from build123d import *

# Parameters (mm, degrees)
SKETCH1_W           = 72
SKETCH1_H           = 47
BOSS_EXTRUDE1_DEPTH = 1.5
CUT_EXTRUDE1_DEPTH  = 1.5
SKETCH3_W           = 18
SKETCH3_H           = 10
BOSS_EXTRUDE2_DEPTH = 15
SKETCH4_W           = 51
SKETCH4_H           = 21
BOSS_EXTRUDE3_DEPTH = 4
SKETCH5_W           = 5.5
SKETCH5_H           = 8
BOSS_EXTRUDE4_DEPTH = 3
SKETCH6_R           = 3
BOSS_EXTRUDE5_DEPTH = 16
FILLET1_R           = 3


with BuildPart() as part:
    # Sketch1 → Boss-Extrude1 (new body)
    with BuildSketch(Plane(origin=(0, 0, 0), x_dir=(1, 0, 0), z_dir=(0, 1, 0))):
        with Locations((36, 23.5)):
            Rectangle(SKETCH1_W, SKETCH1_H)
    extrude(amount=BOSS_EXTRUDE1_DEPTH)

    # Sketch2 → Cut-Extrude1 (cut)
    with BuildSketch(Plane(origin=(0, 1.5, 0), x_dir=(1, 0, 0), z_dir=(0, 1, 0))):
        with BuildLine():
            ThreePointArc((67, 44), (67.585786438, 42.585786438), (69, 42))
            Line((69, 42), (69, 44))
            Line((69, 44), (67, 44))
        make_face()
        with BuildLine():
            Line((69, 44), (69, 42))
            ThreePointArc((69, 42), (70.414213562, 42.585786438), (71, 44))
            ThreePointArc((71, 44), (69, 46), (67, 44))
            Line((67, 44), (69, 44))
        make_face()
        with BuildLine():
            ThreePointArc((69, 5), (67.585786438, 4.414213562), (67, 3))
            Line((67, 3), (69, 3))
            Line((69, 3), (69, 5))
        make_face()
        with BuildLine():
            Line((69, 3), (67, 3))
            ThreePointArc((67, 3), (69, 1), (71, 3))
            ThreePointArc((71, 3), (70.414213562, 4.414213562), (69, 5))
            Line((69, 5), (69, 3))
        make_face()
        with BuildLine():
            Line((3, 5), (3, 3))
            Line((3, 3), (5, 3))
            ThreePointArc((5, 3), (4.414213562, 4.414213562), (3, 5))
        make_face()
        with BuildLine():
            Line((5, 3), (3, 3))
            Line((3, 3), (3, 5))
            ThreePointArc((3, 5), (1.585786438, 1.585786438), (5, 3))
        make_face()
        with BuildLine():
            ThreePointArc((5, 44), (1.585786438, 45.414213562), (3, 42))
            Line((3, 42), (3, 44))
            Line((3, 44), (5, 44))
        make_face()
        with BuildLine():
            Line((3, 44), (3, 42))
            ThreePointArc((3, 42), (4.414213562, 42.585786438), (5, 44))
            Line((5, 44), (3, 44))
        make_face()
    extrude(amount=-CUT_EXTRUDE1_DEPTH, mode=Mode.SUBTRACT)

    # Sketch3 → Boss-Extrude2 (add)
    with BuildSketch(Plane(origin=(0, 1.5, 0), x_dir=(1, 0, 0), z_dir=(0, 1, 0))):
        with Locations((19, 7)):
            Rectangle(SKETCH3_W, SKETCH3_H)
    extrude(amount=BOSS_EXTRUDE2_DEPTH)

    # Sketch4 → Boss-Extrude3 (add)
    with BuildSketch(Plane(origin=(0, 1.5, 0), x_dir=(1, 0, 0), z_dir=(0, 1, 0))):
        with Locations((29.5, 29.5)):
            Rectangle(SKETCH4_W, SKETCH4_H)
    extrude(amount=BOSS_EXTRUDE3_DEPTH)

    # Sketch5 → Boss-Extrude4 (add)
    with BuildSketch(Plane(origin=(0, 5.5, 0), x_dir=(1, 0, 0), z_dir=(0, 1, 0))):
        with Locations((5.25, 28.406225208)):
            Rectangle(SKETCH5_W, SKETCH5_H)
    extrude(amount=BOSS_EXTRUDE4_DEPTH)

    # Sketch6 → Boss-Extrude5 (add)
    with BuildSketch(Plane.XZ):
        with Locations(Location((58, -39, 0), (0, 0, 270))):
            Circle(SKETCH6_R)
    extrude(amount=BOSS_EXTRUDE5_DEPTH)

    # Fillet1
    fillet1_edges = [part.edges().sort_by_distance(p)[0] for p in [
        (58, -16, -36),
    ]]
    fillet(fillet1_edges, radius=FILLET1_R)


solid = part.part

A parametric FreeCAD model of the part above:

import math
import FreeCAD as App
import Part
import Sketcher

V = App.Vector


def edges_at(feature, points):
    """Names of the edges that pass closest to the given points."""
    edges = feature.Shape.Edges
    near = lambda p: min(range(len(edges)), key=lambda i: edges[i].distToShape(Part.Vertex(*p))[0])
    return sorted({f"Edge{near(p) + 1}" for p in points})


def add_polygon(sketch, points):
    """Adds a closed chain of lines whose ends are joined by coincident constraints."""
    first, n = sketch.GeometryCount, len(points)
    for a, b in zip(points, points[1:] + points[:1]):
        sketch.addGeometry(Part.LineSegment(App.Vector(*a, 0), App.Vector(*b, 0)), False)
    for i in range(n):
        sketch.addConstraint(Sketcher.Constraint("Coincident", first + i, 2, first + (i + 1) % n, 1))

doc = App.newDocument("Part")
params = doc.addObject("Spreadsheet::Sheet", "Params")
for row, (alias, value) in enumerate([
    ("sketch1_width", "72 mm"),
    ("sketch1_height", "47 mm"),
    ("pad1_length", "1.5 mm"),
    ("sketch2_radius", "2 mm"),
    ("pocket1_length", "1.5 mm"),
    ("sketch3_width", "18 mm"),
    ("sketch3_height", "10 mm"),
    ("pad2_length", "15 mm"),
    ("sketch4_width", "51 mm"),
    ("sketch4_height", "21 mm"),
    ("pad3_length", "4 mm"),
    ("sketch5_height", "8 mm"),
    ("sketch5_width", "5.5 mm"),
    ("pad4_length", "3 mm"),
    ("sketch6_diameter", "6 mm"),
    ("pad5_length", "16 mm"),
    ("fillet_radius", "3 mm"),
], start=1):
    params.set(f"A{row}", alias)
    params.set(f"B{row}", "=" + value)
    params.setAlias(f"B{row}", alias)

body = doc.addObject("PartDesign::Body", "Body")

sketch1 = body.newObject("Sketcher::SketchObject", "Sketch")
sketch1.AttachmentSupport = (doc.getObject("XZ_Plane"), [""])
sketch1.MapMode = "FlatFace"
add_polygon(sketch1, [(0, -47), (0, 0), (72, 0), (72, -47)])
sketch1.addConstraint(Sketcher.Constraint("Vertical", 0))
sketch1.addConstraint(Sketcher.Constraint("Horizontal", 1))
sketch1.addConstraint(Sketcher.Constraint("Vertical", 2))
sketch1.addConstraint(Sketcher.Constraint("Horizontal", 3))
sketch1.addConstraint(Sketcher.Constraint("Coincident", 0, 2, -1, 1))
sketch1.addConstraint(Sketcher.Constraint("DistanceX", 1, 1, 1, 2, 72.0))
sketch1.addConstraint(Sketcher.Constraint("DistanceY", 0, 1, 0, 2, 47.0))
sketch1.setExpression("Constraints[9]", "Params.sketch1_width")
sketch1.setExpression("Constraints[10]", "Params.sketch1_height")
pad1 = body.newObject("PartDesign::Pad", "Pad")
pad1.Profile = sketch1
pad1.setExpression("Length", "Params.pad1_length")
pad1.Reversed = True

sketch2 = body.newObject("Sketcher::SketchObject", "Sketch001")
sketch2.AttachmentSupport = (doc.getObject("XZ_Plane"), [""])
sketch2.MapMode = "FlatFace"
sketch2.AttachmentOffset = App.Placement(V(0, 0, -1.5), App.Rotation())
sketch2.addGeometry(Part.ArcOfCircle(Part.Circle(V(69, -44, 0), V(0, 0, 1), 2), math.radians(90), math.radians(180)), False)
sketch2.addGeometry(Part.ArcOfCircle(Part.Circle(V(69, -44, 0), V(0, 0, 1), 2), math.radians(0), math.radians(90)), False)
sketch2.addGeometry(Part.ArcOfCircle(Part.Circle(V(69, -44, 0), V(0, 0, 1), 2), math.radians(180), math.radians(360)), False)
sketch2.addGeometry(Part.ArcOfCircle(Part.Circle(V(69, -3, 0), V(0, 0, 1), 2), math.radians(-180), math.radians(-90)), False)
sketch2.addGeometry(Part.ArcOfCircle(Part.Circle(V(69, -3, 0), V(0, 0, 1), 2), math.radians(0), math.radians(180)), False)
sketch2.addGeometry(Part.ArcOfCircle(Part.Circle(V(69, -3, 0), V(0, 0, 1), 2), math.radians(-90), math.radians(0)), False)
sketch2.addGeometry(Part.ArcOfCircle(Part.Circle(V(3, -3, 0), V(0, 0, 1), 2), math.radians(-90), math.radians(0)), False)
sketch2.addGeometry(Part.ArcOfCircle(Part.Circle(V(3, -3, 0), V(0, 0, 1), 2), math.radians(0), math.radians(270)), False)
sketch2.addGeometry(Part.ArcOfCircle(Part.Circle(V(3, -44, 0), V(0, 0, 1), 2), math.radians(90), math.radians(360)), False)
sketch2.addGeometry(Part.ArcOfCircle(Part.Circle(V(3, -44, 0), V(0, 0, 1), 2), math.radians(0), math.radians(90)), False)
sketch2.addConstraint(Sketcher.Constraint("Tangent", 0, 1, 1, 2))
sketch2.addConstraint(Sketcher.Constraint("Tangent", 1, 1, 2, 2))
sketch2.addConstraint(Sketcher.Constraint("Tangent", 2, 1, 0, 2))
sketch2.addConstraint(Sketcher.Constraint("Tangent", 3, 1, 4, 2))
sketch2.addConstraint(Sketcher.Constraint("Tangent", 4, 1, 5, 2))
sketch2.addConstraint(Sketcher.Constraint("Tangent", 5, 1, 3, 2))
sketch2.addConstraint(Sketcher.Constraint("Tangent", 6, 1, 7, 2))
sketch2.addConstraint(Sketcher.Constraint("Coincident", 7, 1, 6, 2))
sketch2.addConstraint(Sketcher.Constraint("Tangent", 8, 1, 9, 2))
sketch2.addConstraint(Sketcher.Constraint("Coincident", 9, 1, 8, 2))
sketch2.addConstraint(Sketcher.Constraint("Equal", 2, 3))
sketch2.addConstraint(Sketcher.Constraint("Equal", 5, 6))
sketch2.addConstraint(Sketcher.Constraint("Equal", 7, 8))
sketch2.addConstraint(Sketcher.Constraint("Horizontal", 5, 3, 6, 3))
sketch2.addConstraint(Sketcher.Constraint("Horizontal", 2, 3, 8, 3))
sketch2.addConstraint(Sketcher.Constraint("Horizontal", 9, 3, 1, 1))
sketch2.addConstraint(Sketcher.Constraint("Horizontal", 1, 1, 2, 1))
sketch2.addConstraint(Sketcher.Constraint("Horizontal", 7, 3, 3, 1))
sketch2.addConstraint(Sketcher.Constraint("Horizontal", 3, 1, 4, 1))
sketch2.addConstraint(Sketcher.Constraint("Horizontal", 4, 1, 7, 1))
sketch2.addConstraint(Sketcher.Constraint("Horizontal", 2, 1, 9, 1))
sketch2.addConstraint(Sketcher.Constraint("Vertical", 2, 3, 3, 3))
sketch2.addConstraint(Sketcher.Constraint("Vertical", 7, 3, 8, 3))
sketch2.addConstraint(Sketcher.Constraint("Vertical", 5, 3, 0, 1))
sketch2.addConstraint(Sketcher.Constraint("Vertical", 0, 1, 5, 1))
sketch2.addConstraint(Sketcher.Constraint("Vertical", 9, 3, 6, 1))
sketch2.addConstraint(Sketcher.Constraint("Vertical", 6, 1, 8, 1))
sketch2.addConstraint(Sketcher.Constraint("Radius", 0, 2.0))
sketch2.addConstraint(Sketcher.Constraint("DistanceX", -1, 1, 0, 3, 69.0))
sketch2.addConstraint(Sketcher.Constraint("DistanceY", 0, 3, -1, 1, 44.0))
sketch2.addConstraint(Sketcher.Constraint("DistanceY", 3, 3, -1, 1, 3.0))
sketch2.addConstraint(Sketcher.Constraint("DistanceX", -1, 1, 6, 3, 3.0))
sketch2.setExpression("Constraints[27]", "Params.sketch2_radius")
pocket1 = body.newObject("PartDesign::Pocket", "Pocket")
pocket1.Profile = sketch2
pocket1.setExpression("Length", "Params.pocket1_length")
pocket1.Reversed = True

sketch3 = body.newObject("Sketcher::SketchObject", "Sketch002")
sketch3.AttachmentSupport = (doc.getObject("XZ_Plane"), [""])
sketch3.MapMode = "FlatFace"
sketch3.AttachmentOffset = App.Placement(V(0, 0, -1.5), App.Rotation())
add_polygon(sketch3, [(10, -12), (10, -2), (28, -2), (28, -12)])
sketch3.addConstraint(Sketcher.Constraint("Vertical", 0))
sketch3.addConstraint(Sketcher.Constraint("Horizontal", 1))
sketch3.addConstraint(Sketcher.Constraint("Vertical", 2))
sketch3.addConstraint(Sketcher.Constraint("Horizontal", 3))
sketch3.addConstraint(Sketcher.Constraint("DistanceX", 1, 1, 1, 2, 18.0))
sketch3.addConstraint(Sketcher.Constraint("DistanceY", 0, 1, 0, 2, 10.0))
sketch3.addConstraint(Sketcher.Constraint("DistanceX", -1, 1, 0, 2, 10.0))
sketch3.addConstraint(Sketcher.Constraint("DistanceY", 0, 2, -1, 1, 2.0))
sketch3.setExpression("Constraints[8]", "Params.sketch3_width")
sketch3.setExpression("Constraints[9]", "Params.sketch3_height")
pad2 = body.newObject("PartDesign::Pad", "Pad001")
pad2.Profile = sketch3
pad2.setExpression("Length", "Params.pad2_length")
pad2.Reversed = True

sketch4 = body.newObject("Sketcher::SketchObject", "Sketch003")
sketch4.AttachmentSupport = (doc.getObject("XZ_Plane"), [""])
sketch4.MapMode = "FlatFace"
sketch4.AttachmentOffset = App.Placement(V(0, 0, -1.5), App.Rotation())
add_polygon(sketch4, [(4, -40), (4, -19), (55, -19), (55, -40)])
sketch4.addConstraint(Sketcher.Constraint("Vertical", 0))
sketch4.addConstraint(Sketcher.Constraint("Horizontal", 1))
sketch4.addConstraint(Sketcher.Constraint("Vertical", 2))
sketch4.addConstraint(Sketcher.Constraint("Horizontal", 3))
sketch4.addConstraint(Sketcher.Constraint("DistanceX", 1, 1, 1, 2, 51.0))
sketch4.addConstraint(Sketcher.Constraint("DistanceY", 0, 1, 0, 2, 21.0))
sketch4.addConstraint(Sketcher.Constraint("DistanceX", -1, 1, 0, 2, 4.0))
sketch4.addConstraint(Sketcher.Constraint("DistanceY", 0, 2, -1, 1, 19.0))
sketch4.setExpression("Constraints[8]", "Params.sketch4_width")
sketch4.setExpression("Constraints[9]", "Params.sketch4_height")
pad3 = body.newObject("PartDesign::Pad", "Pad002")
pad3.Profile = sketch4
pad3.setExpression("Length", "Params.pad3_length")
pad3.Reversed = True

sketch5 = body.newObject("Sketcher::SketchObject", "Sketch004")
sketch5.AttachmentSupport = (doc.getObject("XZ_Plane"), [""])
sketch5.MapMode = "FlatFace"
sketch5.AttachmentOffset = App.Placement(V(0, 0, -5.5), App.Rotation())
add_polygon(sketch5, [(2, -32), (2, -24), (8, -24), (8, -32)])
sketch5.addConstraint(Sketcher.Constraint("Vertical", 0))
sketch5.addConstraint(Sketcher.Constraint("Horizontal", 1))
sketch5.addConstraint(Sketcher.Constraint("Vertical", 2))
sketch5.addConstraint(Sketcher.Constraint("Horizontal", 3))
sketch5.addConstraint(Sketcher.Constraint("DistanceY", 0, 1, 0, 2, 8.0))
sketch5.addConstraint(Sketcher.Constraint("DistanceX", 1, 1, 1, 2, 5.5))
sketch5.addConstraint(Sketcher.Constraint("DistanceX", -1, 1, 1, 2, 8.0))
sketch5.addConstraint(Sketcher.Constraint("DistanceY", 0, 2, -1, 1, 24.406225))
sketch5.setExpression("Constraints[8]", "Params.sketch5_height")
sketch5.setExpression("Constraints[9]", "Params.sketch5_width")
pad4 = body.newObject("PartDesign::Pad", "Pad003")
pad4.Profile = sketch5
pad4.setExpression("Length", "Params.pad4_length")
pad4.Reversed = True

sketch6 = body.newObject("Sketcher::SketchObject", "Sketch005")
sketch6.AttachmentSupport = (doc.getObject("XZ_Plane"), [""])
sketch6.MapMode = "FlatFace"
sketch6.addGeometry(Part.Circle(V(58, -39, 0), V(0, 0, 1), 3), False)
sketch6.addConstraint(Sketcher.Constraint("Diameter", 0, 6.0))
sketch6.addConstraint(Sketcher.Constraint("DistanceX", -1, 1, 0, 3, 58.0))
sketch6.addConstraint(Sketcher.Constraint("DistanceY", 0, 3, -1, 1, 39.0))
sketch6.setExpression("Constraints[0]", "Params.sketch6_diameter")
pad5 = body.newObject("PartDesign::Pad", "Pad004")
pad5.Profile = sketch6
pad5.setExpression("Length", "Params.pad5_length")
doc.recompute()

fillet = body.newObject("PartDesign::Fillet", "Fillet")
fillet.Base = (pad5, edges_at(pad5, [(58, -16, -36)]))
fillet.setExpression("Radius", "Params.fillet_radius")

doc.recompute()
